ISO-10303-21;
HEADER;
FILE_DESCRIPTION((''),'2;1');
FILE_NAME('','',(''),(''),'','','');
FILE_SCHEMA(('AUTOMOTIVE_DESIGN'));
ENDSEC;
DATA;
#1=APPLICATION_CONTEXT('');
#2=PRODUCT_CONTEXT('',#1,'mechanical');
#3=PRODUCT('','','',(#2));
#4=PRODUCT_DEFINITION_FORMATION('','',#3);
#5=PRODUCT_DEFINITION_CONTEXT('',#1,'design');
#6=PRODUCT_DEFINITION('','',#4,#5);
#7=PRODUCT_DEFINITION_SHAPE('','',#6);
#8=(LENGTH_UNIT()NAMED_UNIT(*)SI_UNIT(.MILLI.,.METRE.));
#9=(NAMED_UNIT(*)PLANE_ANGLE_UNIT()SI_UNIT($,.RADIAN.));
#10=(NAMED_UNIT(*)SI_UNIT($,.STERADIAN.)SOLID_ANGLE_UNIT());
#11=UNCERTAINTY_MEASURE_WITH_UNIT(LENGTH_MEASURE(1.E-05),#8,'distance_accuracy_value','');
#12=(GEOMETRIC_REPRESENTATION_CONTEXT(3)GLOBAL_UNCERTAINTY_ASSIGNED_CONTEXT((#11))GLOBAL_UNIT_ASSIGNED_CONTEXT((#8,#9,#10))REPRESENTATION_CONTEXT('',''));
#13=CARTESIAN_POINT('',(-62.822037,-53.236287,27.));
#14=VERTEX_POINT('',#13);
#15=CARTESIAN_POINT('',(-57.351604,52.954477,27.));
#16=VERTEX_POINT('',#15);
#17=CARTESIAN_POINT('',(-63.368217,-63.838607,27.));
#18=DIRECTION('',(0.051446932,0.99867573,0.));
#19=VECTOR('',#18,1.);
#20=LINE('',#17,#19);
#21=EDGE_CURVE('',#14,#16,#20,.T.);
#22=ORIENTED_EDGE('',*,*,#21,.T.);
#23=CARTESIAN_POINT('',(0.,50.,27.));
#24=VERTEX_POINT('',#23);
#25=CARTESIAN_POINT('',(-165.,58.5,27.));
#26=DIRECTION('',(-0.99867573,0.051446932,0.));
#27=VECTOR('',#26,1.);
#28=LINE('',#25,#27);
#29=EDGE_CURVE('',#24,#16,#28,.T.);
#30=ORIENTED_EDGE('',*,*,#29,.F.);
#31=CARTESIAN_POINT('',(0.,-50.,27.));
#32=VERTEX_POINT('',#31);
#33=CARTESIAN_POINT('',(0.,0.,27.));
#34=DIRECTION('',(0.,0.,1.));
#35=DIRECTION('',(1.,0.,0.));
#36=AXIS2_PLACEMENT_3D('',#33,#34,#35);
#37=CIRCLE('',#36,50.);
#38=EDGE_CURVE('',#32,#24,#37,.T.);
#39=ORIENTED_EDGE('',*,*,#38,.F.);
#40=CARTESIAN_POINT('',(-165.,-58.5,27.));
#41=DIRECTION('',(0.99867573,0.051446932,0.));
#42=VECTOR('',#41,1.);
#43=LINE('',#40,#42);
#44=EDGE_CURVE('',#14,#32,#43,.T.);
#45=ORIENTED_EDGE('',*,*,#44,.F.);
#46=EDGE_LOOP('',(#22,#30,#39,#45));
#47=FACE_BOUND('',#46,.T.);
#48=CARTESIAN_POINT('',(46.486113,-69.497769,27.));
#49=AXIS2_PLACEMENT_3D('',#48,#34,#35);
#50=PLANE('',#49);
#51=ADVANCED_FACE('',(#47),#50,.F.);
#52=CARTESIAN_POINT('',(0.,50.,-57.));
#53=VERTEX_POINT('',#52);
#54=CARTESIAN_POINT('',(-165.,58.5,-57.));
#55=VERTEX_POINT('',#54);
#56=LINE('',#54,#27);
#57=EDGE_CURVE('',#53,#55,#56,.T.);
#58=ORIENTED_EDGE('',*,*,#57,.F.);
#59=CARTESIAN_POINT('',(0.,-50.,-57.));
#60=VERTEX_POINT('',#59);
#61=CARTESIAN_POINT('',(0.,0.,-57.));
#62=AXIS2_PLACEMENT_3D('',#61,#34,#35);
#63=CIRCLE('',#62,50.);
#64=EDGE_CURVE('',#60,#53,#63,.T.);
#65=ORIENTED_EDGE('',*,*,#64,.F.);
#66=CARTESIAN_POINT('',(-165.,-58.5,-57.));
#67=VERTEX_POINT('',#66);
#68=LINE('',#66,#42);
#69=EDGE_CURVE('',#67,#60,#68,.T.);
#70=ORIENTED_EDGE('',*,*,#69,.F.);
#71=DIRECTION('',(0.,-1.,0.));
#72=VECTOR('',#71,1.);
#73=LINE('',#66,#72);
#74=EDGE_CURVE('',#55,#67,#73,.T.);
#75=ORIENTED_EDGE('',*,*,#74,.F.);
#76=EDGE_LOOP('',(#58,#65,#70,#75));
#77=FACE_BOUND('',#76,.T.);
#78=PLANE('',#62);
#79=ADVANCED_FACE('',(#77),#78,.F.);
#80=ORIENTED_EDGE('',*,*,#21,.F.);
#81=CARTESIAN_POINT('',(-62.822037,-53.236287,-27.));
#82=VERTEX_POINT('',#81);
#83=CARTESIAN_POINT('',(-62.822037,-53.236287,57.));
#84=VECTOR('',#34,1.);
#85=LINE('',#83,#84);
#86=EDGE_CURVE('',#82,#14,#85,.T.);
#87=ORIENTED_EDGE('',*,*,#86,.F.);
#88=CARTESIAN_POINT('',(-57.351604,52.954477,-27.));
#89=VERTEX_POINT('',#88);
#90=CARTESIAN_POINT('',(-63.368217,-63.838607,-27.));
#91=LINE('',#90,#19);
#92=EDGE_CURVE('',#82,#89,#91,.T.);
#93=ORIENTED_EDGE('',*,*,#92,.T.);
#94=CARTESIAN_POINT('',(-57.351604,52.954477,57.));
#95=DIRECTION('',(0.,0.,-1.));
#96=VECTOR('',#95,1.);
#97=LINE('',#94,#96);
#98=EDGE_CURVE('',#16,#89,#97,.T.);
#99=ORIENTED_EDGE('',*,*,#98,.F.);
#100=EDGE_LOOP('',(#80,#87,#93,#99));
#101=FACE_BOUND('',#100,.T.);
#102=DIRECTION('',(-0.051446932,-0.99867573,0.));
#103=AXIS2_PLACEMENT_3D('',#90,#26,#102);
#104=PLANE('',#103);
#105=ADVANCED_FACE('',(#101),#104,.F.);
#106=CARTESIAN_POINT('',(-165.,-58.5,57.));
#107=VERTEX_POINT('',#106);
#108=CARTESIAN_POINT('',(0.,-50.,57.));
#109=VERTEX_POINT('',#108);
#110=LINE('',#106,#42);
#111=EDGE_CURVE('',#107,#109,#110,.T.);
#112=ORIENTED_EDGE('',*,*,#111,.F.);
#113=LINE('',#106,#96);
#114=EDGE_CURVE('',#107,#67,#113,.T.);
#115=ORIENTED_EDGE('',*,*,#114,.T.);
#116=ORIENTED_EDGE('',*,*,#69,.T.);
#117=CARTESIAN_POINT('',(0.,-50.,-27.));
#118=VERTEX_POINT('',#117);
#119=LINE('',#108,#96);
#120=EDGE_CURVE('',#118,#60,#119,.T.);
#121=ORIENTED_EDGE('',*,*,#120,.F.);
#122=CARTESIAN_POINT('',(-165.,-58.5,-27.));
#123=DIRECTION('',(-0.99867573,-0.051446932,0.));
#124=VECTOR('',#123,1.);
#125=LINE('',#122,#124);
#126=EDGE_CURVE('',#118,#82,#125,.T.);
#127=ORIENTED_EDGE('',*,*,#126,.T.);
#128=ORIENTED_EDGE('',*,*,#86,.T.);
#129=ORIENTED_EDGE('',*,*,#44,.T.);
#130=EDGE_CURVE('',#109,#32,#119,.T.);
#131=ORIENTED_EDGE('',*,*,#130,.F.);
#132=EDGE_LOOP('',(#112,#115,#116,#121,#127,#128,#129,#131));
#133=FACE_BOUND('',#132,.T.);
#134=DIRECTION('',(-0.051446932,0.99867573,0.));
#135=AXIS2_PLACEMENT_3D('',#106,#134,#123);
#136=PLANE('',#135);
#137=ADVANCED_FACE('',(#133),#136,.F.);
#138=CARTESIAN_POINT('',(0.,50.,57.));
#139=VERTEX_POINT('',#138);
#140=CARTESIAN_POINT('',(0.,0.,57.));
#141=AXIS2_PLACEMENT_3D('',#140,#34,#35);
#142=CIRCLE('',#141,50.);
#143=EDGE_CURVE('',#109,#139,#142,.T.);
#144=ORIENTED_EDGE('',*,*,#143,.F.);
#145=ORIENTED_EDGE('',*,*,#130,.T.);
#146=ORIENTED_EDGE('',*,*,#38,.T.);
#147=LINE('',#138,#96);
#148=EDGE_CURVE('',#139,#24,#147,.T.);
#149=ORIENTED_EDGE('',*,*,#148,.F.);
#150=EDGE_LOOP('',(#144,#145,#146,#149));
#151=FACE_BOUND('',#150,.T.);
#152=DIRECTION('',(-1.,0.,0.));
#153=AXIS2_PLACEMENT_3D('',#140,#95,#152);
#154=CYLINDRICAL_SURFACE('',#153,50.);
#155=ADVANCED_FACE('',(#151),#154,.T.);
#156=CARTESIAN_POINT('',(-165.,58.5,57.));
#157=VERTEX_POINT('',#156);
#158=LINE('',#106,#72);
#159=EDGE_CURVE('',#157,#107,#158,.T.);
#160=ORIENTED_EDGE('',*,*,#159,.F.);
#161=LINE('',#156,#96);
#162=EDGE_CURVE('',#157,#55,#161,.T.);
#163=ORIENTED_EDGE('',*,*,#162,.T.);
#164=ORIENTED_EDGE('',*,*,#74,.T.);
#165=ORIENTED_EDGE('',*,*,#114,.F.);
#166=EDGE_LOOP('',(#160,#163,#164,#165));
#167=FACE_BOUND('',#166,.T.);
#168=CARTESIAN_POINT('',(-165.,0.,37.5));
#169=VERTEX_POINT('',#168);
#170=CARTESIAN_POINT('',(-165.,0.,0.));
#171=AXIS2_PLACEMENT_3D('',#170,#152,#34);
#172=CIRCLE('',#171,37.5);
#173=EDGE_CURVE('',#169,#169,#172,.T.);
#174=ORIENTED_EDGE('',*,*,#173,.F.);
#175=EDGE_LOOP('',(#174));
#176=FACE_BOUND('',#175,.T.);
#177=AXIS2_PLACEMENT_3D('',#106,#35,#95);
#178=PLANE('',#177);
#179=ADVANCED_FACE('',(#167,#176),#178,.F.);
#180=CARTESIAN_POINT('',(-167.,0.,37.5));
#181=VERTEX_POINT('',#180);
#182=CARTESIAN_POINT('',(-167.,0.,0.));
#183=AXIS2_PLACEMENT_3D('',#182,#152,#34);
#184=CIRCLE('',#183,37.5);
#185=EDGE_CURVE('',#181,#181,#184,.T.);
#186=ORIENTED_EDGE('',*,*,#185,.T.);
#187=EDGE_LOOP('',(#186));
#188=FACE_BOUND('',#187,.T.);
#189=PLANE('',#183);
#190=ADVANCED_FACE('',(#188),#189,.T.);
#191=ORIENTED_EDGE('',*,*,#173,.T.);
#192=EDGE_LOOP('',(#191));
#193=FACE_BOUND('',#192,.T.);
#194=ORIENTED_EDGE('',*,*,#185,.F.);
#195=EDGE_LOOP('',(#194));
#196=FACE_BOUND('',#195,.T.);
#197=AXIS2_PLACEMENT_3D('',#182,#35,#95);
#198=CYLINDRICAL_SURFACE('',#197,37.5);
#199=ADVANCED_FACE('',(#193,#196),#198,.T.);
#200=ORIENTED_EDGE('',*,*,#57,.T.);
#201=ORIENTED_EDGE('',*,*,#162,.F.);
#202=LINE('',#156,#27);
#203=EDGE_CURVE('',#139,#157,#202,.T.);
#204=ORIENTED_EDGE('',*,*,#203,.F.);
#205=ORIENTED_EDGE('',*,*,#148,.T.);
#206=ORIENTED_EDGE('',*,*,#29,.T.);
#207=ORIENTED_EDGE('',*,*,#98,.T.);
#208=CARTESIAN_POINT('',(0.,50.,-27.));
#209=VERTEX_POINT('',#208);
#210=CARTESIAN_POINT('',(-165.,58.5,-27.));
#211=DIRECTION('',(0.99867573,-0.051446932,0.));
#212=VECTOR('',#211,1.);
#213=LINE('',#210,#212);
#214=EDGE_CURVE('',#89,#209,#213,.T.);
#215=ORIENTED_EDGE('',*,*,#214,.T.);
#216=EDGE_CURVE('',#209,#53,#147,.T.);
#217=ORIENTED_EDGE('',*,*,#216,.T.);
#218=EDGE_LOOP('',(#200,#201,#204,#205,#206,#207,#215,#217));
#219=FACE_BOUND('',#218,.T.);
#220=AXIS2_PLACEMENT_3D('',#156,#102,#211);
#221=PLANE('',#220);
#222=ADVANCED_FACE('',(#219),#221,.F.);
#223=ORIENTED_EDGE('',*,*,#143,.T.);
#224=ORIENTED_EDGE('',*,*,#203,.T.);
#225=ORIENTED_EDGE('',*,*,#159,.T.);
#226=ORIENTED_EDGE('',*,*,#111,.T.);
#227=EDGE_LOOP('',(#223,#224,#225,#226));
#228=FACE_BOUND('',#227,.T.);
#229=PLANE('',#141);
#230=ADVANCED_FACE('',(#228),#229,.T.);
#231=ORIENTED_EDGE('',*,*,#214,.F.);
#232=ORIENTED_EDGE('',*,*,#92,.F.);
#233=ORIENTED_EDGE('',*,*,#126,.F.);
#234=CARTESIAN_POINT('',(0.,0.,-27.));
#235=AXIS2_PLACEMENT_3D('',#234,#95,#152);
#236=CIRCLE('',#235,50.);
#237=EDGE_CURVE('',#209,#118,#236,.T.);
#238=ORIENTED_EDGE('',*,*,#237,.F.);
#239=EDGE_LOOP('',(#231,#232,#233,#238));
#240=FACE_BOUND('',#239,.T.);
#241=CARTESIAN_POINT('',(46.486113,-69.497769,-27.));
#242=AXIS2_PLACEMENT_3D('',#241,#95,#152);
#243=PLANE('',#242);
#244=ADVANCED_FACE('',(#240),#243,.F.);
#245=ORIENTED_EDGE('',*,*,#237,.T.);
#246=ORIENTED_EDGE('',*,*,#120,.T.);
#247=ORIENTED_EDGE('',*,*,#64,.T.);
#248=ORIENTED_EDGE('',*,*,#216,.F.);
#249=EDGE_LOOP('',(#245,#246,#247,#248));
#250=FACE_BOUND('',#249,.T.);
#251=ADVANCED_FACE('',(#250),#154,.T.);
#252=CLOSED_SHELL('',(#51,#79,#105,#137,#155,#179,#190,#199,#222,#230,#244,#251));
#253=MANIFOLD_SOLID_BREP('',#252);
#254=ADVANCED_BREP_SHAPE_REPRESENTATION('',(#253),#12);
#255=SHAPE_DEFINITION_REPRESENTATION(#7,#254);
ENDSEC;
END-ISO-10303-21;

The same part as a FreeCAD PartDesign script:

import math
import FreeCAD as App
import Part
import Sketcher
from FreeCAD import Vector

doc = App.newDocument("Part")
params = doc.addObject("Spreadsheet::Sheet", "Params")
for row, (alias, value) in enumerate([
    ("sketch1_radius", "50 mm"),
    ("sketch1_height", "117 mm"),
    ("pad1_length", "114 mm"),
    ("sketch2_diameter", "75 mm"),
    ("pad2_length", "2 mm"),
    ("sketch3_width", "110 mm"),
    ("sketch3_height", "54 mm"),
], start=1):
    params.set(f"A{row}", alias)
    params.set(f"B{row}", "=" + value)
    params.setAlias(f"B{row}", alias)

body = doc.addObject("PartDesign::Body", "Body")

sketch1 = body.newObject("Sketcher::SketchObject", "Sketch")
sketch1.AttachmentSupport = (doc.getObject("XY_Plane"), [""])
sketch1.MapMode = "FlatFace"
sketch1.addGeometry(Part.LineSegment(Vector(-165, 58, 0), Vector(-165, -58, 0)), False)
sketch1.addGeometry(Part.LineSegment(Vector(-165, -58, 0), Vector(0, -50, 0)), False)
sketch1.addGeometry(Part.ArcOfCircle(Part.Circle(Vector(0, 0, 0), Vector(0, 0, 1), 50), math.radians(-90), math.radians(90)), False)
sketch1.addGeometry(Part.LineSegment(Vector(0, 50, 0), Vector(-165, 58, 0)), False)
sketch1.addConstraint(Sketcher.Constraint("Coincident", 0, 2, 1, 1))
sketch1.addConstraint(Sketcher.Constraint("Coincident", 1, 2, 2, 1))
sketch1.addConstraint(Sketcher.Constraint("Coincident", 2, 2, 3, 1))
sketch1.addConstraint(Sketcher.Constraint("Coincident", 3, 2, 0, 1))
sketch1.addConstraint(Sketcher.Constraint("Vertical", 0))
sketch1.addConstraint(Sketcher.Constraint("Coincident", 2, 3, -1, 1))
sketch1.addConstraint(Sketcher.Constraint("PointOnObject", 1, 2, -2))
sketch1.addConstraint(Sketcher.Constraint("PointOnObject", 2, 2, -2))
sketch1.addConstraint(Sketcher.Constraint("Equal", 1, 3))
sketch1.addConstraint(Sketcher.Constraint("Radius", 2, 50.0))
sketch1.addConstraint(Sketcher.Constraint("DistanceY", 0, 2, 0, 1, 117.0))
sketch1.addConstraint(Sketcher.Constraint("DistanceX", 0, 2, -1, 1, 165.0))
sketch1.setExpression("Constraints[9]", "Params.sketch1_radius")
sketch1.setExpression("Constraints[10]", "Params.sketch1_height")
pad1 = body.newObject("PartDesign::Pad", "Pad")
pad1.Profile = sketch1
pad1.setExpression("Length", "Params.pad1_length")
pad1.Midplane = True

sketch2 = body.newObject("Sketcher::SketchObject", "Sketch001")
sketch2.AttachmentSupport = (doc.getObject("YZ_Plane"), [""])
sketch2.MapMode = "FlatFace"
sketch2.AttachmentOffset = App.Placement(Vector(0, 0, -165), App.Rotation())
sketch2.addGeometry(Part.Circle(Vector(0, 0, 0), Vector(0, 0, 1), 38), False)
sketch2.addConstraint(Sketcher.Constraint("Coincident", 0, 3, -1, 1))
sketch2.addConstraint(Sketcher.Constraint("Diameter", 0, 75.0))
sketch2.setExpression("Constraints[1]", "Params.sketch2_diameter")
pad2 = body.newObject("PartDesign::Pad", "Pad001")
pad2.Profile = sketch2
pad2.setExpression("Length", "Params.pad2_length")
pad2.Reversed = True

sketch3 = body.newObject("Sketcher::SketchObject", "Sketch002")
sketch3.Placement = App.Placement(Vector(2.56894, 49.867661, 0), App.Rotation(Vector(0.99867573, -0.051446932, 0), Vector(0, 0, -1.000000001), Vector(0.051446932, 0.99867573, 0), "ZXY"))
sketch3.addGeometry(Part.LineSegment(Vector(-60, 27, 0), Vector(-60, -27, 0)), False)
sketch3.addGeometry(Part.LineSegment(Vector(-60, -27, 0), Vector(50, -27, 0)), False)
sketch3.addGeometry(Part.LineSegment(Vector(50, -27, 0), Vector(50, 27, 0)), False)
sketch3.addGeometry(Part.LineSegment(Vector(50, 27, 0), Vector(-60, 27, 0)), False)
sketch3.addConstraint(Sketcher.Constraint("Coincident", 0, 2, 1, 1))
sketch3.addConstraint(Sketcher.Constraint("Coincident", 1, 2, 2, 1))
sketch3.addConstraint(Sketcher.Constraint("Coincident", 2, 2, 3, 1))
sketch3.addConstraint(Sketcher.Constraint("Coincident", 3, 2, 0, 1))
sketch3.addConstraint(Sketcher.Constraint("Vertical", 0))
sketch3.addConstraint(Sketcher.Constraint("Horizontal", 1))
sketch3.addConstraint(Sketcher.Constraint("Vertical", 2))
sketch3.addConstraint(Sketcher.Constraint("Horizontal", 3))
sketch3.addConstraint(Sketcher.Constraint("DistanceX", 1, 1, 1, 2, 110.0))
sketch3.addConstraint(Sketcher.Constraint("DistanceY", 0, 2, 0, 1, 54.0))
sketch3.addConstraint(Sketcher.Constraint("DistanceX", 0, 2, -1, 1, 60.0))
sketch3.addConstraint(Sketcher.Constraint("DistanceY", 0, 2, -1, 1, 27.0))
sketch3.setExpression("Constraints[8]", "Params.sketch3_width")
sketch3.setExpression("Constraints[9]", "Params.sketch3_height")
pocket1 = body.newObject("PartDesign::Pocket", "Pocket")
pocket1.Profile = sketch3
pocket1.Type = "ThroughAll"
pocket1.Midplane = True

doc.recompute()
